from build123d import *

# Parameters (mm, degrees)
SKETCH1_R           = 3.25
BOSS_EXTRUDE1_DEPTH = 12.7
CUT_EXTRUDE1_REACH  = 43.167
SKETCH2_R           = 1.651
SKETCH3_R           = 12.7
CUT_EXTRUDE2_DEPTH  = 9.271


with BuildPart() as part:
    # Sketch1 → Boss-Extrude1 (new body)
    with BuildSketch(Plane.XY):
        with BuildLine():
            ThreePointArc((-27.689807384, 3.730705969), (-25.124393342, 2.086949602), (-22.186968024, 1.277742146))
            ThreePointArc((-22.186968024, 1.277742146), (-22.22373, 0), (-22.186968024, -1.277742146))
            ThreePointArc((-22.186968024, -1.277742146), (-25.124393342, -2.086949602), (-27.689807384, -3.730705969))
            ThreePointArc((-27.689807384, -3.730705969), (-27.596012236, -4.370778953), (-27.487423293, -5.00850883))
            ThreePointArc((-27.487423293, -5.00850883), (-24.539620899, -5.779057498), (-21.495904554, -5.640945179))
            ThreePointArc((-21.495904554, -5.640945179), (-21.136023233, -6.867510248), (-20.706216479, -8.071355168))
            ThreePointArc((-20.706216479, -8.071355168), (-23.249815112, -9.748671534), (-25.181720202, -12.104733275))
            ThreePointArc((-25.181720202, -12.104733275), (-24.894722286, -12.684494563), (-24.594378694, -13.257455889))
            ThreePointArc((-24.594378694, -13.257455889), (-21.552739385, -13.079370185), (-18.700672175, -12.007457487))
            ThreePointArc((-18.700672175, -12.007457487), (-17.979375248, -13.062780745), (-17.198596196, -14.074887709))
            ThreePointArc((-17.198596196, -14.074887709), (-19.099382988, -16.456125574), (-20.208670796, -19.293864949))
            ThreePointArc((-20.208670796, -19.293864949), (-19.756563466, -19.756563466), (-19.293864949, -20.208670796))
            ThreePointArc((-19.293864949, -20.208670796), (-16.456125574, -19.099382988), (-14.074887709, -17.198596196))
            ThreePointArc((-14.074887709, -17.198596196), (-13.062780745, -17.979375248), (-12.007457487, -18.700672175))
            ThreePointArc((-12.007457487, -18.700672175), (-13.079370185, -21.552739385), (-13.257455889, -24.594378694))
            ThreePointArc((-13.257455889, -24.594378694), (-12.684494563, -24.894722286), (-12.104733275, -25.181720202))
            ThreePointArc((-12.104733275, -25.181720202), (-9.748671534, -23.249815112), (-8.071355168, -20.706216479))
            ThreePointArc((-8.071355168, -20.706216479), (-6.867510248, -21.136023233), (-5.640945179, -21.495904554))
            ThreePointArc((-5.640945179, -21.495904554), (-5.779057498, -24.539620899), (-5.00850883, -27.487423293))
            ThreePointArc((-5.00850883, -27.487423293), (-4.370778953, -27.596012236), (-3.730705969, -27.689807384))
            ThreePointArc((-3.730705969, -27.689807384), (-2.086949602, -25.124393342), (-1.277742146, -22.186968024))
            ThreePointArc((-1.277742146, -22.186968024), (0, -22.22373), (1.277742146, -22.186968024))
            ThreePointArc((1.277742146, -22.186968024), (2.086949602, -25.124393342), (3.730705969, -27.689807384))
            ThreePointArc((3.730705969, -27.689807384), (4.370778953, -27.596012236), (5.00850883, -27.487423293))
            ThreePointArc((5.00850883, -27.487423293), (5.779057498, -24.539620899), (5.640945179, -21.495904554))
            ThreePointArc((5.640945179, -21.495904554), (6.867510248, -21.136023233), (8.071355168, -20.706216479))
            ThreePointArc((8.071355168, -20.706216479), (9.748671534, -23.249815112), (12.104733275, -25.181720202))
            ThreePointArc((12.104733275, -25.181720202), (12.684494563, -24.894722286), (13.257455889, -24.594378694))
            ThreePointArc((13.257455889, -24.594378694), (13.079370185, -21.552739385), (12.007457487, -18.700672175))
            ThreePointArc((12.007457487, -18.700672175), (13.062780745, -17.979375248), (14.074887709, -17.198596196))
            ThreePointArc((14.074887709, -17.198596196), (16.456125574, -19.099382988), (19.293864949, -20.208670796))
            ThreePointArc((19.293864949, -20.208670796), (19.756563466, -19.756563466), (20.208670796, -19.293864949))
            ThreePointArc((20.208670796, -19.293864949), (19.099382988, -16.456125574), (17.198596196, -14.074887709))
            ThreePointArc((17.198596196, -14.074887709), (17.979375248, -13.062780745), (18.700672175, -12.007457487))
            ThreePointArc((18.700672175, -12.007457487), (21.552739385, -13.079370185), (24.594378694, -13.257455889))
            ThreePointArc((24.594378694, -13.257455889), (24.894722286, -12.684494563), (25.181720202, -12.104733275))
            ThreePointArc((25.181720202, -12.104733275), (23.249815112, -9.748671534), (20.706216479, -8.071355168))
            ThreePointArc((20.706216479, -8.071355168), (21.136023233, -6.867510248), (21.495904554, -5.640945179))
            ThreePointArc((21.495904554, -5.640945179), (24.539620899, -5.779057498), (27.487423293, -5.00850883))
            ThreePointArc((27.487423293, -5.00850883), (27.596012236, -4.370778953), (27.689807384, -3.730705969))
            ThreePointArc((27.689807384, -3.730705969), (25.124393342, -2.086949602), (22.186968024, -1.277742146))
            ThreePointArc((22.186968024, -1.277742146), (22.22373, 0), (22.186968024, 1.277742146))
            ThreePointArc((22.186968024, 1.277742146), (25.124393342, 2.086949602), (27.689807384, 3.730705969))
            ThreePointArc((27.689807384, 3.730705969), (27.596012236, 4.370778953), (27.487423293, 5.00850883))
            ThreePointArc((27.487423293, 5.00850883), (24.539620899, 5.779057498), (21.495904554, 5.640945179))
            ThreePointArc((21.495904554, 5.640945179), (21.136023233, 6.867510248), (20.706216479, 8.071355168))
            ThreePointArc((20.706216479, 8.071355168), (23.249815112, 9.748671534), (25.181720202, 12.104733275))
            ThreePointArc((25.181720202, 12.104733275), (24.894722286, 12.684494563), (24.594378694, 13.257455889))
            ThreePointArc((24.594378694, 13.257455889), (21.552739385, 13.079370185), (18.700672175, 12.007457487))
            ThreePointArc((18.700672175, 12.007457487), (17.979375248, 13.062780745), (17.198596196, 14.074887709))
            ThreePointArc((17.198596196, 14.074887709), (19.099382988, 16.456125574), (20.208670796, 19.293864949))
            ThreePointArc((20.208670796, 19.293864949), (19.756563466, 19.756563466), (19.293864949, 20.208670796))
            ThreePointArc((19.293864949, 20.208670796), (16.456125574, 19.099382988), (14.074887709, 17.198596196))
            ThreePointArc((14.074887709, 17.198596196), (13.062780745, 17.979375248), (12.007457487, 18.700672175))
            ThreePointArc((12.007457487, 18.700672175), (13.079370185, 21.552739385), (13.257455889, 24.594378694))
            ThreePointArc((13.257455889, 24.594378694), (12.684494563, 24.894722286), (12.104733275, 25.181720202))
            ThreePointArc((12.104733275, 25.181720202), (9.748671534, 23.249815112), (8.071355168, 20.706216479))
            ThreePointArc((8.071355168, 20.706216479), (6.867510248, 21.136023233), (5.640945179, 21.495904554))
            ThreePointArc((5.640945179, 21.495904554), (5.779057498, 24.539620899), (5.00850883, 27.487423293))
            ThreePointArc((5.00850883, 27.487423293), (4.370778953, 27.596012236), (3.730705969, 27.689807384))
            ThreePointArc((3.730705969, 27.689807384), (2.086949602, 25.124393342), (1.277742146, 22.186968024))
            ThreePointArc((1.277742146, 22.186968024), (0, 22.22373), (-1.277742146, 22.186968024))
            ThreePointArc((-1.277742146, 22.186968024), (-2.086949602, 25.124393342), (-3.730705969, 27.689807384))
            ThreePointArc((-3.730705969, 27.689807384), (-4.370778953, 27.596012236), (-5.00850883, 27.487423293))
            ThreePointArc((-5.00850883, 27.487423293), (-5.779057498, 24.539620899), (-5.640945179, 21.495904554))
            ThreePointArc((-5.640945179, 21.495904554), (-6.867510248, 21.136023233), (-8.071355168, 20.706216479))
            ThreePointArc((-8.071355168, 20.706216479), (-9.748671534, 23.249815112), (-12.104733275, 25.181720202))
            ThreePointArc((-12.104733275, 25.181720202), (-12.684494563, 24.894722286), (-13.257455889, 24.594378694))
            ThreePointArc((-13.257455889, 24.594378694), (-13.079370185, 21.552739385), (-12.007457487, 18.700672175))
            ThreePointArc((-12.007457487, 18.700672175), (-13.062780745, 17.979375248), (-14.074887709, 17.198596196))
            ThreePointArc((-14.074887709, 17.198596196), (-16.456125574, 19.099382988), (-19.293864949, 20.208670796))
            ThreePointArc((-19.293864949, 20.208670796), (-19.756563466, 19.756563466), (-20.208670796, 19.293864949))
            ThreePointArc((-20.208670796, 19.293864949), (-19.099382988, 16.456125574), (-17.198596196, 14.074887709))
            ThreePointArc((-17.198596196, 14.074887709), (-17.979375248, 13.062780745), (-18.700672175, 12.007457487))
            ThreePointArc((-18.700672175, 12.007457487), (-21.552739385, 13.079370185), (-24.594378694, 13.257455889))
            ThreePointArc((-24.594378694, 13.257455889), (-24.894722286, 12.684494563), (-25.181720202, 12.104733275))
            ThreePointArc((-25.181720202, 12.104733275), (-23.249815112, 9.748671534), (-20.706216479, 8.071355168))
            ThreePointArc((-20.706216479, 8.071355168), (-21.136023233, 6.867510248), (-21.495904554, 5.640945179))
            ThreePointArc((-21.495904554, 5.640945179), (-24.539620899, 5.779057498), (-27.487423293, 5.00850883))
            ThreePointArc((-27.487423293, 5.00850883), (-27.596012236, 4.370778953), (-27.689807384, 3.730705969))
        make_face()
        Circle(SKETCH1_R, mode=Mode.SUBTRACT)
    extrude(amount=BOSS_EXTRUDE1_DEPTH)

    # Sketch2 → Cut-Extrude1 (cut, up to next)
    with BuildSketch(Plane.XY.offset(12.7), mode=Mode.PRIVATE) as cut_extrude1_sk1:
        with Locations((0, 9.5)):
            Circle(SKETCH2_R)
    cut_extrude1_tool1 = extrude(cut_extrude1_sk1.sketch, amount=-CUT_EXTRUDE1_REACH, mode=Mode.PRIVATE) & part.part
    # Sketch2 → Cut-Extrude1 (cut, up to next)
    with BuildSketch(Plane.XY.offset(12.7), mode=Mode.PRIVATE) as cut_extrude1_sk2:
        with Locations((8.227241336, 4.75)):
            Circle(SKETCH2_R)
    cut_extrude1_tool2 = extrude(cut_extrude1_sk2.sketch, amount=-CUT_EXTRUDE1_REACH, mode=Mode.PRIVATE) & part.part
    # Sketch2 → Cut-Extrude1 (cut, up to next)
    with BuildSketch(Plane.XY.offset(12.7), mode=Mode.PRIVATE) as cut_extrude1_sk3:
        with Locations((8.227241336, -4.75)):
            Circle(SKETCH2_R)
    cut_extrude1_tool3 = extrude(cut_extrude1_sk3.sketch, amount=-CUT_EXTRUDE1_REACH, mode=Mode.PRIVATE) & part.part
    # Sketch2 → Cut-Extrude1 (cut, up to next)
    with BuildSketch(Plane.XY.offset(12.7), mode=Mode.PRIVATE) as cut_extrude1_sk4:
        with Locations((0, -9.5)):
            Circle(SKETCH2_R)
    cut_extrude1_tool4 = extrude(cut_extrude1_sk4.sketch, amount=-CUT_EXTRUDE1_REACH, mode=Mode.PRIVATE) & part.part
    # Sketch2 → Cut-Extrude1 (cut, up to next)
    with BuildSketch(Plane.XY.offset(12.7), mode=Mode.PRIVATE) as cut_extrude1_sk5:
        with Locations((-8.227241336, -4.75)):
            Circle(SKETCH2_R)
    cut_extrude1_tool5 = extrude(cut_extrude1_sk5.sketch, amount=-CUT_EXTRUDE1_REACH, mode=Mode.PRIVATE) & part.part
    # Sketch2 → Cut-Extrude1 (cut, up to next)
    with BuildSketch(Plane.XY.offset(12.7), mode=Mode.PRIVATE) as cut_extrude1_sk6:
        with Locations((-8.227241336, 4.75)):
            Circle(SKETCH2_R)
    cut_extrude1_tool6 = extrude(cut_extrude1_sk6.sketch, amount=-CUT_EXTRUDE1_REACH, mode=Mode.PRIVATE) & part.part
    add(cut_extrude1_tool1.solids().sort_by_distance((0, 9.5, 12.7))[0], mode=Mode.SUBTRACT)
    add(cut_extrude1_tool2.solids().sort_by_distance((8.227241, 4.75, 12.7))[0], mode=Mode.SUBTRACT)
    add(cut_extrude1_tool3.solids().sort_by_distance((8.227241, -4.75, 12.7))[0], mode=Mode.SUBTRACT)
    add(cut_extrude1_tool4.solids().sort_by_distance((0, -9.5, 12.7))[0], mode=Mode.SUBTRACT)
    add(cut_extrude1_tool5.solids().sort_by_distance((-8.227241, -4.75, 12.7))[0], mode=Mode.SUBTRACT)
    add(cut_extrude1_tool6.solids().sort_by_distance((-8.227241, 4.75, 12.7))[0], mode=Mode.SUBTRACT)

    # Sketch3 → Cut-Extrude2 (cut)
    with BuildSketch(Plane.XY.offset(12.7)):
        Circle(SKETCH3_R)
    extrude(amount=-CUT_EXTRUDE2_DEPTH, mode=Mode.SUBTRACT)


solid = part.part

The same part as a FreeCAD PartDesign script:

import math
import FreeCAD as App
import Part
import Sketcher

V = App.Vector
Q = App.Units.Quantity

doc = App.newDocument("Part")
params = doc.addObject("Spreadsheet::Sheet", "Params")
for row, (alias, value) in enumerate([
    ("sketch1_radius", "0.4 in"),
    ("sketch1_radius2", "1.1 in"),
    ("sketch1_radius3", "1.1000001 in"),
    ("pad1_length", "0.5 in"),
    ("sketch2_diameter", "0.13 in"),
    ("sketch3_diameter", "0.13 in"),
    ("sketch4_diameter", "0.13 in"),
    ("sketch5_diameter", "0.13 in"),
    ("sketch6_diameter", "0.13 in"),
    ("sketch7_diameter", "0.13 in"),
    ("sketch8_diameter", "1 in"),
    ("pocket7_length", "0.365 in"),
], start=1):
    params.set(f"A{row}", alias)
    params.set(f"B{row}", "=" + value)
    params.setAlias(f"B{row}", alias)

body = doc.addObject("PartDesign::Body", "Body")

# Sketch on XY plane
sketch1 = doc.addObject("Sketcher::SketchObject", "Sketch")
body.addObject(sketch1)
sketch1.AttachmentSupport = (doc.XY_Plane, [""])
sketch1.MapMode = "FlatFace"
sketch1.addGeometry([
    Part.ArcOfCircle(Part.Circle(V(-20.987809, 11.366727, 0), V(0, 0, 1), 10.16), math.radians(-131.272842), math.radians(-96.778275)),  # 0
    Part.ArcOfCircle(Part.Circle(V(0, 0, 0), V(0, 0, 1), 22.22373), math.radians(176.70399), math.radians(183.29601)),  # 1
    Part.ArcOfCircle(Part.Circle(V(-20.987809, -11.366727, 0), V(0, 0, 1), 10.16), math.radians(96.778275), math.radians(131.272842)),  # 2
    Part.ArcOfCircle(Part.Circle(V(0, 0, 0), V(0, 0, 1), 27.94), math.radians(-172.326627), math.radians(-169.673373)),  # 3
    Part.ArcOfCircle(Part.Circle(V(-23.473104, 4.32481, 0), V(0, 0, 1), 10.16), math.radians(-113.272842), math.radians(-78.778275)),  # 4
    Part.ArcOfCircle(Part.Circle(V(0, 0, 0), V(0, 0, 1), 22.22373), math.radians(-165.29601), math.radians(-158.70399)),  # 5
    Part.ArcOfCircle(Part.Circle(V(-16.448081, -17.29599, 0), V(0, 0, 1), 10.16), math.radians(114.778275), math.radians(149.272842)),  # 6
    Part.ArcOfCircle(Part.Circle(V(-0.000001, -0.000001, 0), V(0, 0, 1), 27.939998), math.radians(-154.326627), math.radians(-151.673373)),  # 7
    Part.ArcOfCircle(Part.Circle(V(-23.660689, -3.140449, 0), V(0, 0, 1), 10.16), math.radians(-95.272842), math.radians(-60.778275)),  # 8
    Part.ArcOfCircle(Part.Circle(V(0, 0, 0), V(0, 0, 1), 22.22373), math.radians(-147.29601), math.radians(-140.703991)),  # 9
    Part.ArcOfCircle(Part.Circle(V(-10.2983, -21.5322, 0), V(0, 0, 1), 10.16), math.radians(132.778275), math.radians(167.272842)),  # 10
    Part.ArcOfCircle(Part.Circle(V(0.000002, 0.000002, 0), V(0, 0, 1), 27.940003), math.radians(-136.326627), math.radians(-133.673373)),  # 11
    Part.ArcOfCircle(Part.Circle(V(-21.5322, -10.2983, 0), V(0, 0, 1), 10.16), math.radians(-77.272842), math.radians(-42.778275)),  # 12
    Part.ArcOfCircle(Part.Circle(V(0, 0, 0), V(0, 0, 1), 22.22373), math.radians(-129.296009), math.radians(-122.70399)),  # 13
    Part.ArcOfCircle(Part.Circle(V(-3.140449, -23.660689, 0), V(0, 0, 1), 10.16), math.radians(150.778275), math.radians(185.272842)),  # 14
    Part.ArcOfCircle(Part.Circle(V(-0.000001, -0.000001, 0), V(0, 0, 1), 27.939998), math.radians(-118.326627), math.radians(-115.673373)),  # 15
    Part.ArcOfCircle(Part.Circle(V(-17.29599, -16.448081, 0), V(0, 0, 1), 10.16), math.radians(-59.272842), math.radians(-24.778275)),  # 16
    Part.ArcOfCircle(Part.Circle(V(0, 0, 0), V(0, 0, 1), 22.22373), math.radians(-111.29601), math.radians(-104.70399)),  # 17
    Part.ArcOfCircle(Part.Circle(V(4.32481, -23.473104, 0), V(0, 0, 1), 10.16), math.radians(168.778275), math.radians(203.272842)),  # 18
    Part.ArcOfCircle(Part.Circle(V(0, 0, 0), V(0, 0, 1), 27.94), math.radians(-100.326627), math.radians(-97.673373)),  # 19
    Part.ArcOfCircle(Part.Circle(V(-11.366727, -20.987809, 0), V(0, 0, 1), 10.16), math.radians(-41.272842), math.radians(-6.778275)),  # 20
    Part.ArcOfCircle(Part.Circle(V(0, 0, 0), V(0, 0, 1), 22.22373), math.radians(-93.29601), math.radians(-86.70399)),  # 21
    Part.ArcOfCircle(Part.Circle(V(11.366727, -20.987809, 0), V(0, 0, 1), 10.16), math.radians(-173.221725), math.radians(-138.727158)),  # 22
    Part.ArcOfCircle(Part.Circle(V(0, 0, 0), V(0, 0, 1), 27.94), math.radians(-82.326627), math.radians(-79.673373)),  # 23
    Part.ArcOfCircle(Part.Circle(V(-4.32481, -23.473104, 0), V(0, 0, 1), 10.16), math.radians(-23.272842), math.radians(11.221725)),  # 24
    Part.ArcOfCircle(Part.Circle(V(0, 0, 0), V(0, 0, 1), 22.22373), math.radians(-75.29601), math.radians(-68.70399)),  # 25
    Part.ArcOfCircle(Part.Circle(V(17.29599, -16.448081, 0), V(0, 0, 1), 10.16), math.radians(-155.221725), math.radians(-120.727158)),  # 26
    Part.ArcOfCircle(Part.Circle(V(0.000001, -0.000001, 0), V(0, 0, 1), 27.939998), math.radians(-64.326627), math.radians(-61.673373)),  # 27
    Part.ArcOfCircle(Part.Circle(V(3.140449, -23.660689, 0), V(0, 0, 1), 10.16), math.radians(-5.272842), math.radians(29.221725)),  # 28
    Part.ArcOfCircle(Part.Circle(V(0, 0, 0), V(0, 0, 1), 22.22373), math.radians(-57.29601), math.radians(-50.703991)),  # 29
    Part.ArcOfCircle(Part.Circle(V(21.5322, -10.2983, 0), V(0, 0, 1), 10.16), math.radians(-137.221725), math.radians(-102.727158)),  # 30
    Part.ArcOfCircle(Part.Circle(V(-0.000002, 0.000002, 0), V(0, 0, 1), 27.940003), math.radians(-46.326627), math.radians(-43.673373)),  # 31
    Part.ArcOfCircle(Part.Circle(V(10.2983, -21.5322, 0), V(0, 0, 1), 10.16), math.radians(12.727158), math.radians(47.221725)),  # 32
    Part.ArcOfCircle(Part.Circle(V(0, 0, 0), V(0, 0, 1), 22.22373), math.radians(-39.296009), math.radians(-32.70399)),  # 33
    Part.ArcOfCircle(Part.Circle(V(23.660689, -3.140449, 0), V(0, 0, 1), 10.16), math.radians(-119.221725), math.radians(-84.727158)),  # 34
    Part.ArcOfCircle(Part.Circle(V(0.000001, -0.000001, 0), V(0, 0, 1), 27.939998), math.radians(-28.326627), math.radians(-25.673373)),  # 35
    Part.ArcOfCircle(Part.Circle(V(16.448081, -17.29599, 0), V(0, 0, 1), 10.16), math.radians(30.727158), math.radians(65.221725)),  # 36
    Part.ArcOfCircle(Part.Circle(V(0, 0, 0), V(0, 0, 1), 22.22373), math.radians(-21.29601), math.radians(-14.70399)),  # 37
    Part.ArcOfCircle(Part.Circle(V(23.473104, 4.32481, 0), V(0, 0, 1), 10.16), math.radians(-101.221725), math.radians(-66.727158)),  # 38
    Part.ArcOfCircle(Part.Circle(V(0, 0, 0), V(0, 0, 1), 27.94), math.radians(-10.326627), math.radians(-7.673373)),  # 39
    Part.ArcOfCircle(Part.Circle(V(20.987809, -11.366727, 0), V(0, 0, 1), 10.16), math.radians(48.727158), math.radians(83.221725)),  # 40
    Part.ArcOfCircle(Part.Circle(V(0, 0, 0), V(0, 0, 1), 22.22373), math.radians(-3.29601), math.radians(3.29601)),  # 41
    Part.ArcOfCircle(Part.Circle(V(20.987809, 11.366727, 0), V(0, 0, 1), 10.16), math.radians(-83.221725), math.radians(-48.727158)),  # 42
    Part.ArcOfCircle(Part.Circle(V(0, 0, 0), V(0, 0, 1), 27.94), math.radians(7.673373), math.radians(10.326627)),  # 43
    Part.ArcOfCircle(Part.Circle(V(23.473104, -4.32481, 0), V(0, 0, 1), 10.16), math.radians(66.727158), math.radians(101.221725)),  # 44
    Part.ArcOfCircle(Part.Circle(V(0, 0, 0), V(0, 0, 1), 22.22373), math.radians(14.70399), math.radians(21.29601)),  # 45
    Part.ArcOfCircle(Part.Circle(V(16.448081, 17.29599, 0), V(0, 0, 1), 10.16), math.radians(-65.221725), math.radians(-30.727158)),  # 46
    Part.ArcOfCircle(Part.Circle(V(0.000001, 0.000001, 0), V(0, 0, 1), 27.939998), math.radians(25.673373), math.radians(28.326627)),  # 47
    Part.ArcOfCircle(Part.Circle(V(23.660689, 3.140449, 0), V(0, 0, 1), 10.16), math.radians(84.727158), math.radians(119.221725)),  # 48
    Part.ArcOfCircle(Part.Circle(V(0, 0, 0), V(0, 0, 1), 22.22373), math.radians(32.70399), math.radians(39.296009)),  # 49
    Part.ArcOfCircle(Part.Circle(V(10.2983, 21.5322, 0), V(0, 0, 1), 10.16), math.radians(-47.221725), math.radians(-12.727158)),  # 50
    Part.ArcOfCircle(Part.Circle(V(-0.000002, -0.000002, 0), V(0, 0, 1), 27.940003), math.radians(43.673373), math.radians(46.326627)),  # 51
    Part.ArcOfCircle(Part.Circle(V(21.5322, 10.2983, 0), V(0, 0, 1), 10.16), math.radians(102.727158), math.radians(137.221725)),  # 52
    Part.ArcOfCircle(Part.Circle(V(0, 0, 0), V(0, 0, 1), 22.22373), math.radians(50.703991), math.radians(57.29601)),  # 53
    Part.ArcOfCircle(Part.Circle(V(3.140449, 23.660689, 0), V(0, 0, 1), 10.16), math.radians(-29.221725), math.radians(5.272842)),  # 54
    Part.ArcOfCircle(Part.Circle(V(0.000001, 0.000001, 0), V(0, 0, 1), 27.939998), math.radians(61.673373), math.radians(64.326627)),  # 55
    Part.ArcOfCircle(Part.Circle(V(17.29599, 16.448081, 0), V(0, 0, 1), 10.16), math.radians(120.727158), math.radians(155.221725)),  # 56
    Part.ArcOfCircle(Part.Circle(V(0, 0, 0), V(0, 0, 1), 22.22373), math.radians(68.70399), math.radians(75.29601)),  # 57
    Part.ArcOfCircle(Part.Circle(V(-4.32481, 23.473104, 0), V(0, 0, 1), 10.16), math.radians(-11.221725), math.radians(23.272842)),  # 58
    Part.ArcOfCircle(Part.Circle(V(0, 0, 0), V(0, 0, 1), 27.94), math.radians(79.673373), math.radians(82.326627)),  # 59
    Part.ArcOfCircle(Part.Circle(V(11.366727, 20.987809, 0), V(0, 0, 1), 10.16), math.radians(138.727158), math.radians(173.221725)),  # 60
    Part.ArcOfCircle(Part.Circle(V(0, 0, 0), V(0, 0, 1), 22.22373), math.radians(86.70399), math.radians(93.29601)),  # 61
    Part.ArcOfCircle(Part.Circle(V(-11.366727, 20.987809, 0), V(0, 0, 1), 10.16), math.radians(6.778275), math.radians(41.272842)),  # 62
    Part.ArcOfCircle(Part.Circle(V(0, 0, 0), V(0, 0, 1), 27.94), math.radians(97.673373), math.radians(100.326627)),  # 63
    Part.ArcOfCircle(Part.Circle(V(4.32481, 23.473104, 0), V(0, 0, 1), 10.16), math.radians(156.727158), math.radians(191.221725)),  # 64
    Part.ArcOfCircle(Part.Circle(V(0, 0, 0), V(0, 0, 1), 22.22373), math.radians(104.70399), math.radians(111.29601)),  # 65
    Part.ArcOfCircle(Part.Circle(V(-17.29599, 16.448081, 0), V(0, 0, 1), 10.16), math.radians(24.778275), math.radians(59.272842)),  # 66
    Part.ArcOfCircle(Part.Circle(V(-0.000001, 0.000001, 0), V(0, 0, 1), 27.939998), math.radians(115.673373), math.radians(118.326627)),  # 67
    Part.ArcOfCircle(Part.Circle(V(-3.140449, 23.660689, 0), V(0, 0, 1), 10.16), math.radians(174.727158), math.radians(209.221725)),  # 68
    Part.ArcOfCircle(Part.Circle(V(0, 0, 0), V(0, 0, 1), 22.22373), math.radians(122.70399), math.radians(129.296009)),  # 69
    Part.ArcOfCircle(Part.Circle(V(-21.5322, 10.2983, 0), V(0, 0, 1), 10.16), math.radians(42.778275), math.radians(77.272842)),  # 70
    Part.ArcOfCircle(Part.Circle(V(0.000002, -0.000002, 0), V(0, 0, 1), 27.940003), math.radians(133.673373), math.radians(136.326627)),  # 71
    Part.ArcOfCircle(Part.Circle(V(-10.2983, 21.5322, 0), V(0, 0, 1), 10.16), math.radians(-167.272842), math.radians(-132.778275)),  # 72
    Part.ArcOfCircle(Part.Circle(V(0, 0, 0), V(0, 0, 1), 22.22373), math.radians(140.703991), math.radians(147.29601)),  # 73
    Part.ArcOfCircle(Part.Circle(V(-23.660689, 3.140449, 0), V(0, 0, 1), 10.16), math.radians(60.778275), math.radians(95.272842)),  # 74
    Part.ArcOfCircle(Part.Circle(V(-0.000001, 0.000001, 0), V(0, 0, 1), 27.939998), math.radians(151.673373), math.radians(154.326627)),  # 75
    Part.ArcOfCircle(Part.Circle(V(-16.448081, 17.29599, 0), V(0, 0, 1), 10.16), math.radians(-149.272842), math.radians(-114.778275)),  # 76
    Part.ArcOfCircle(Part.Circle(V(0, 0, 0), V(0, 0, 1), 22.22373), math.radians(158.70399), math.radians(165.29601)),  # 77
    Part.ArcOfCircle(Part.Circle(V(-23.473104, -4.32481, 0), V(0, 0, 1), 10.16), math.radians(78.778275), math.radians(113.272842)),  # 78
    Part.ArcOfCircle(Part.Circle(V(0, 0, 0), V(0, 0, 1), 27.94), math.radians(169.673373), math.radians(172.326627)),  # 79
    Part.Circle(V(0, 0, 0), V(0, 0, 1), 3.25),  # 80
], False)
sketch1.addConstraint([
    Sketcher.Constraint("Coincident", 0, 2, 1, 1),
    Sketcher.Constraint("Coincident", 1, 2, 2, 1),
    Sketcher.Constraint("Coincident", 2, 2, 3, 1),
    Sketcher.Constraint("Coincident", 3, 2, 4, 1),
    Sketcher.Constraint("Coincident", 4, 2, 5, 1),
    Sketcher.Constraint("Coincident", 5, 2, 6, 1),
    Sketcher.Constraint("Coincident", 6, 2, 7, 1),
    Sketcher.Constraint("Coincident", 7, 2, 8, 1),
    Sketcher.Constraint("Coincident", 8, 2, 9, 1),
    Sketcher.Constraint("Coincident", 9, 2, 10, 1),
    Sketcher.Constraint("Coincident", 10, 2, 11, 1),
    Sketcher.Constraint("Coincident", 11, 2, 12, 1),
    Sketcher.Constraint("Coincident", 12, 2, 13, 1),
    Sketcher.Constraint("Coincident", 13, 2, 14, 1),
    Sketcher.Constraint("Coincident", 14, 2, 15, 1),
    Sketcher.Constraint("Coincident", 15, 2, 16, 1),
    Sketcher.Constraint("Coincident", 16, 2, 17, 1),
    Sketcher.Constraint("Coincident", 17, 2, 18, 1),
    Sketcher.Constraint("Coincident", 18, 2, 19, 1),
    Sketcher.Constraint("Coincident", 19, 2, 20, 1),
    Sketcher.Constraint("Coincident", 20, 2, 21, 1),
    Sketcher.Constraint("Coincident", 21, 2, 22, 1),
    Sketcher.Constraint("Coincident", 22, 2, 23, 1),
    Sketcher.Constraint("Coincident", 23, 2, 24, 1),
    Sketcher.Constraint("Coincident", 24, 2, 25, 1),
    Sketcher.Constraint("Coincident", 25, 2, 26, 1),
    Sketcher.Constraint("Coincident", 26, 2, 27, 1),
    Sketcher.Constraint("Coincident", 27, 2, 28, 1),
    Sketcher.Constraint("Coincident", 28, 2, 29, 1),
    Sketcher.Constraint("Coincident", 29, 2, 30, 1),
    Sketcher.Constraint("Coincident", 30, 2, 31, 1),
    Sketcher.Constraint("Coincident", 31, 2, 32, 1),
    Sketcher.Constraint("Coincident", 32, 2, 33, 1),
    Sketcher.Constraint("Coincident", 33, 2, 34, 1),
    Sketcher.Constraint("Coincident", 34, 2, 35, 1),
    Sketcher.Constraint("Coincident", 35, 2, 36, 1),
    Sketcher.Constraint("Coincident", 36, 2, 37, 1),
    Sketcher.Constraint("Coincident", 37, 2, 38, 1),
    Sketcher.Constraint("Coincident", 38, 2, 39, 1),
    Sketcher.Constraint("Coincident", 39, 2, 40, 1),
    Sketcher.Constraint("Coincident", 40, 2, 41, 1),
    Sketcher.Constraint("Coincident", 41, 2, 42, 1),
    Sketcher.Constraint("Coincident", 42, 2, 43, 1),
    Sketcher.Constraint("Coincident", 43, 2, 44, 1),
    Sketcher.Constraint("Coincident", 44, 2, 45, 1),
    Sketcher.Constraint("Coincident", 45, 2, 46, 1),
    Sketcher.Constraint("Coincident", 46, 2, 47, 1),
    Sketcher.Constraint("Coincident", 47, 2, 48, 1),
    Sketcher.Constraint("Coincident", 48, 2, 49, 1),
    Sketcher.Constraint("Coincident", 49, 2, 50, 1),
    Sketcher.Constraint("Coincident", 50, 2, 51, 1),
    Sketcher.Constraint("Coincident", 51, 2, 52, 1),
    Sketcher.Constraint("Coincident", 52, 2, 53, 1),
    Sketcher.Constraint("Coincident", 53, 2, 54, 1),
    Sketcher.Constraint("Coincident", 54, 2, 55, 1),
    Sketcher.Constraint("Coincident", 55, 2, 56, 1),
    Sketcher.Constraint("Coincident", 56, 2, 57, 1),
    Sketcher.Constraint("Coincident", 57, 2, 58, 1),
    Sketcher.Constraint("Coincident", 58, 2, 59, 1),
    Sketcher.Constraint("Coincident", 59, 2, 60, 1),
    Sketcher.Constraint("Coincident", 60, 2, 61, 1),
    Sketcher.Constraint("Coincident", 61, 2, 62, 1),
    Sketcher.Constraint("Coincident", 62, 2, 63, 1),
    Sketcher.Constraint("Coincident", 63, 2, 64, 1),
    Sketcher.Constraint("Coincident", 64, 2, 65, 1),
    Sketcher.Constraint("Coincident", 65, 2, 66, 1),
    Sketcher.Constraint("Coincident", 66, 2, 67, 1),
    Sketcher.Constraint("Coincident", 67, 2, 68, 1),
    Sketcher.Constraint("Coincident", 68, 2, 69, 1),
    Sketcher.Constraint("Coincident", 69, 2, 70, 1),
    Sketcher.Constraint("Coincident", 70, 2, 71, 1),
    Sketcher.Constraint("Coincident", 71, 2, 72, 1),
    Sketcher.Constraint("Coincident", 72, 2, 73, 1),
    Sketcher.Constraint("Coincident", 73, 2, 74, 1),
    Sketcher.Constraint("Coincident", 74, 2, 75, 1),
    Sketcher.Constraint("Coincident", 75, 2, 76, 1),
    Sketcher.Constraint("Coincident", 76, 2, 77, 1),
    Sketcher.Constraint("Coincident", 77, 2, 78, 1),
    Sketcher.Constraint("Coincident", 78, 2, 79, 1),
    Sketcher.Constraint("Coincident", 79, 2, 0, 1),
    Sketcher.Constraint("Coincident", 1, 3, -1, 1),
    Sketcher.Constraint("Coincident", 3, 3, -1, 1),
    Sketcher.Constraint("Coincident", 5, 3, -1, 1),
    Sketcher.Constraint("Coincident", 7, 3, -1, 1),
    Sketcher.Constraint("Coincident", 9, 3, -1, 1),
    Sketcher.Constraint("Coincident", 11, 3, -1, 1),
    Sketcher.Constraint("Coincident", 13, 3, -1, 1),
    Sketcher.Constraint("Coincident", 15, 3, -1, 1),
    Sketcher.Constraint("Coincident", 17, 3, -1, 1),
    Sketcher.Constraint("Coincident", 19, 3, -1, 1),
    Sketcher.Constraint("Coincident", 21, 3, -1, 1),
    Sketcher.Constraint("Coincident", 23, 3, -1, 1),
    Sketcher.Constraint("Coincident", 25, 3, -1, 1),
    Sketcher.Constraint("Coincident", 27, 3, -1, 1),
    Sketcher.Constraint("Coincident", 29, 3, -1, 1),
    Sketcher.Constraint("Coincident", 31, 3, -1, 1),
    Sketcher.Constraint("Coincident", 33, 3, -1, 1),
    Sketcher.Constraint("Coincident", 35, 3, -1, 1),
    Sketcher.Constraint("Coincident", 37, 3, -1, 1),
    Sketcher.Constraint("Coincident", 39, 3, -1, 1),
    Sketcher.Constraint("Coincident", 41, 3, -1, 1),
    Sketcher.Constraint("Coincident", 43, 3, -1, 1),
    Sketcher.Constraint("Coincident", 45, 3, -1, 1),
    Sketcher.Constraint("Coincident", 47, 3, -1, 1),
    Sketcher.Constraint("Coincident", 49, 3, -1, 1),
    Sketcher.Constraint("Coincident", 51, 3, -1, 1),
    Sketcher.Constraint("Coincident", 53, 3, -1, 1),
    Sketcher.Constraint("Coincident", 55, 3, -1, 1),
    Sketcher.Constraint("Coincident", 57, 3, -1, 1),
    Sketcher.Constraint("Coincident", 59, 3, -1, 1),
    Sketcher.Constraint("Coincident", 61, 3, -1, 1),
    Sketcher.Constraint("Coincident", 63, 3, -1, 1),
    Sketcher.Constraint("Coincident", 65, 3, -1, 1),
    Sketcher.Constraint("Coincident", 67, 3, -1, 1),
    Sketcher.Constraint("Coincident", 69, 3, -1, 1),
    Sketcher.Constraint("Coincident", 71, 3, -1, 1),
    Sketcher.Constraint("Coincident", 73, 3, -1, 1),
    Sketcher.Constraint("Coincident", 75, 3, -1, 1),
    Sketcher.Constraint("Coincident", 77, 3, -1, 1),
    Sketcher.Constraint("Coincident", 79, 3, -1, 1),
    Sketcher.Constraint("Coincident", 80, 3, -1, 1),
    Sketcher.Constraint("Equal", 0, 2),
    Sketcher.Constraint("Equal", 2, 4),
    Sketcher.Constraint("Equal", 1, 5),
    Sketcher.Constraint("Equal", 4, 6),
    Sketcher.Constraint("Equal", 3, 7),
    Sketcher.Constraint("Equal", 6, 8),
    Sketcher.Constraint("Equal", 5, 9),
    Sketcher.Constraint("Equal", 8, 10),
    Sketcher.Constraint("Equal", 10, 12),
    Sketcher.Constraint("Equal", 9, 13),
    Sketcher.Constraint("Equal", 12, 14),
    Sketcher.Constraint("Equal", 7, 15),
    Sketcher.Constraint("Equal", 14, 16),
    Sketcher.Constraint("Equal", 13, 17),
    Sketcher.Constraint("Equal", 16, 18),
    Sketcher.Constraint("Equal", 15, 19),
    Sketcher.Constraint("Equal", 18, 20),
    Sketcher.Constraint("Equal", 17, 21),
    Sketcher.Constraint("Equal", 20, 22),
    Sketcher.Constraint("Equal", 19, 23),
    Sketcher.Constraint("Equal", 22, 24),
    Sketcher.Constraint("Equal", 21, 25),
    Sketcher.Constraint("Equal", 24, 26),
    Sketcher.Constraint("Equal", 23, 27),
    Sketcher.Constraint("Equal", 26, 28),
    Sketcher.Constraint("Equal", 25, 29),
    Sketcher.Constraint("Equal", 28, 30),
    Sketcher.Constraint("Equal", 11, 31),
    Sketcher.Constraint("Equal", 30, 32),
    Sketcher.Constraint("Equal", 29, 33),
    Sketcher.Constraint("Equal", 32, 34),
    Sketcher.Constraint("Equal", 27, 35),
    Sketcher.Constraint("Equal", 34, 36),
    Sketcher.Constraint("Equal", 33, 37),
    Sketcher.Constraint("Equal", 36, 38),
    Sketcher.Constraint("Equal", 35, 39),
    Sketcher.Constraint("Equal", 38, 40),
    Sketcher.Constraint("Equal", 37, 41),
    Sketcher.Constraint("Equal", 40, 42),
    Sketcher.Constraint("Equal", 39, 43),
    Sketcher.Constraint("Equal", 42, 44),
    Sketcher.Constraint("Equal", 41, 45),
    Sketcher.Constraint("Equal", 44, 46),
    Sketcher.Constraint("Equal", 43, 47),
    Sketcher.Constraint("Equal", 46, 48),
    Sketcher.Constraint("Equal", 45, 49),
    Sketcher.Constraint("Equal", 48, 50),
    Sketcher.Constraint("Equal", 31, 51),
    Sketcher.Constraint("Equal", 50, 52),
    Sketcher.Constraint("Equal", 49, 53),
    Sketcher.Constraint("Equal", 52, 54),
    Sketcher.Constraint("Equal", 47, 55),
    Sketcher.Constraint("Equal", 54, 56),
    Sketcher.Constraint("Equal", 53, 57),
    Sketcher.Constraint("Equal", 56, 58),
    Sketcher.Constraint("Equal", 55, 59),
    Sketcher.Constraint("Equal", 58, 60),
    Sketcher.Constraint("Equal", 57, 61),
    Sketcher.Constraint("Equal", 60, 62),
    Sketcher.Constraint("Equal", 59, 63),
    Sketcher.Constraint("Equal", 62, 64),
    Sketcher.Constraint("Equal", 61, 65),
    Sketcher.Constraint("Equal", 64, 66),
    Sketcher.Constraint("Equal", 63, 67),
    Sketcher.Constraint("Equal", 66, 68),
    Sketcher.Constraint("Equal", 65, 69),
    Sketcher.Constraint("Equal", 68, 70),
    Sketcher.Constraint("Equal", 51, 71),
    Sketcher.Constraint("Equal", 70, 72),
    Sketcher.Constraint("Equal", 69, 73),
    Sketcher.Constraint("Equal", 72, 74),
    Sketcher.Constraint("Equal", 67, 75),
    Sketcher.Constraint("Equal", 74, 76),
    Sketcher.Constraint("Equal", 73, 77),
    Sketcher.Constraint("Equal", 76, 78),
    Sketcher.Constraint("Equal", 75, 79),
    Sketcher.Constraint("Symmetric", 0, 3, 40, 3, -1, 1),
    Sketcher.Constraint("Symmetric", 2, 3, 42, 3, -1, 1),
    Sketcher.Constraint("Symmetric", 4, 3, 44, 3, -1, 1),
    Sketcher.Constraint("Symmetric", 6, 3, 46, 3, -1, 1),
    Sketcher.Constraint("Symmetric", 8, 3, 48, 3, -1, 1),
    Sketcher.Constraint("Symmetric", 10, 3, 50, 3, -1, 1),
    Sketcher.Constraint("Symmetric", 12, 3, 52, 3, -1, 1),
    Sketcher.Constraint("Symmetric", 14, 3, 54, 3, -1, 1),
    Sketcher.Constraint("Symmetric", 16, 3, 56, 3, -1, 1),
    Sketcher.Constraint("Symmetric", 18, 3, 58, 3, -1, 1),
    Sketcher.Constraint("Symmetric", 20, 3, 60, 3, -1, 1),
    Sketcher.Constraint("Symmetric", 22, 3, 62, 3, -1, 1),
    Sketcher.Constraint("Symmetric", 24, 3, 64, 3, -1, 1),
    Sketcher.Constraint("Symmetric", 26, 3, 66, 3, -1, 1),
    Sketcher.Constraint("Symmetric", 28, 3, 68, 3, -1, 1),
    Sketcher.Constraint("Symmetric", 30, 3, 70, 3, -1, 1),
    Sketcher.Constraint("Symmetric", 32, 3, 72, 3, -1, 1),
    Sketcher.Constraint("Symmetric", 34, 3, 74, 3, -1, 1),
    Sketcher.Constraint("Symmetric", 36, 3, 76, 3, -1, 1),
    Sketcher.Constraint("Symmetric", 38, 3, 78, 3, -1, 1),
    Sketcher.Constraint("Symmetric", 20, 3, 22, 3, -2),
    Sketcher.Constraint("Symmetric", 18, 3, 24, 3, -2),
    Sketcher.Constraint("Symmetric", 16, 3, 26, 3, -2),
    Sketcher.Constraint("Symmetric", 14, 3, 28, 3, -2),
    Sketcher.Constraint("Symmetric", 12, 3, 30, 3, -2),
    Sketcher.Constraint("Symmetric", 10, 3, 32, 3, -2),
    Sketcher.Constraint("Symmetric", 8, 3, 34, 3, -2),
    Sketcher.Constraint("Symmetric", 6, 3, 36, 3, -2),
    Sketcher.Constraint("Symmetric", 4, 3, 38, 3, -2),
    Sketcher.Constraint("Symmetric", 2, 3, 40, 3, -2),
    Sketcher.Constraint("Radius", 0, Q("0.4 in")),
    Sketcher.Constraint("Radius", 3, Q("1.1 in")),
    Sketcher.Constraint("Radius", 11, Q("1.1000001 in")),
    Sketcher.Constraint("Diameter", 80, 6.5),
    Sketcher.Constraint("Radius", 1, 22.22373),
    Sketcher.Constraint("DistanceX", 10, 3, -1, 1, 10.2983),
    Sketcher.Constraint("DistanceY", 10, 3, -1, 1, 21.5322),
    Sketcher.Constraint("DistanceX", 12, 3, -1, 1, 21.5322),
    Sketcher.Constraint("DistanceY", 12, 3, -1, 1, 10.2983),
    Sketcher.Constraint("DistanceX", 0, 3, -1, 1, 20.987809),
    Sketcher.Constraint("DistanceY", -1, 1, 4, 3, 4.32481),
    Sketcher.Constraint("DistanceX", 6, 3, -1, 1, 16.448081),
    Sketcher.Constraint("DistanceY", 6, 3, -1, 1, 17.29599),
    Sketcher.Constraint("DistanceX", 8, 3, -1, 1, 23.660689),
    Sketcher.Constraint("DistanceY", 8, 3, -1, 1, 3.140449),
    Sketcher.Constraint("DistanceX", 14, 3, -1, 1, 3.140449),
    Sketcher.Constraint("DistanceY", 14, 3, -1, 1, 23.660689),
    Sketcher.Constraint("DistanceX", 16, 3, -1, 1, 17.29599),
    Sketcher.Constraint("DistanceY", 16, 3, -1, 1, 16.448081),
    Sketcher.Constraint("DistanceX", -1, 1, 18, 3, 4.32481),
    Sketcher.Constraint("DistanceY", 20, 3, -1, 1, 20.987809),
    Sketcher.Constraint("DistanceX", 0, 2, -1, 1, 22.186968),
    Sketcher.Constraint("DistanceY", 3, 2, -1, 1, 5.008509),
    Sketcher.Constraint("DistanceX", 18, 2, -1, 1, 5.008509),
    Sketcher.Constraint("DistanceY", 20, 2, -1, 1, 22.186968),
])
sketch1.setExpression("Constraints[227]", "Params.sketch1_radius")
sketch1.setExpression("Constraints[228]", "Params.sketch1_radius2")
sketch1.setExpression("Constraints[229]", "Params.sketch1_radius3")
pad1 = doc.addObject("PartDesign::Pad", "Pad")
body.addObject(pad1)
pad1.Profile = sketch1
pad1.setExpression("Length", "Params.pad1_length")

# Sketch on XY plane
sketch2 = doc.addObject("Sketcher::SketchObject", "Sketch001")
body.addObject(sketch2)
sketch2.AttachmentSupport = (doc.XY_Plane, [""])
sketch2.MapMode = "FlatFace"
sketch2.AttachmentOffset = App.Placement(V(0, 0, 0.5 * 25.4), App.Rotation())
sketch2.addGeometry(Part.Circle(V(0, 9.5, 0), V(0, 0, 1), 1.651), False)
sketch2.addConstraint([
    Sketcher.Constraint("PointOnObject", 0, 3, -2),
    Sketcher.Constraint("Diameter", 0, Q("0.13 in")),
    Sketcher.Constraint("DistanceY", -1, 1, 0, 3, 9.5),
])
sketch2.setExpression("Constraints[1]", "Params.sketch2_diameter")
pocket1 = doc.addObject("PartDesign::Pocket", "Pocket")
body.addObject(pocket1)
pocket1.Profile = sketch2
pocket1.Type = "UpToFirst"

# Sketch on XY plane
sketch3 = doc.addObject("Sketcher::SketchObject", "Sketch002")
body.addObject(sketch3)
sketch3.AttachmentSupport = (doc.XY_Plane, [""])
sketch3.MapMode = "FlatFace"
sketch3.AttachmentOffset = App.Placement(V(0, 0, 0.5 * 25.4), App.Rotation())
sketch3.addGeometry(Part.Circle(V(8.227241, 4.75, 0), V(0, 0, 1), 1.651), False)
sketch3.addConstraint([
    Sketcher.Constraint("Diameter", 0, Q("0.13 in")),
    Sketcher.Constraint("DistanceY", -1, 1, 0, 3, 4.75),
    Sketcher.Constraint("DistanceX", -1, 1, 0, 3, 8.227241),
])
sketch3.setExpression("Constraints[0]", "Params.sketch3_diameter")
pocket2 = doc.addObject("PartDesign::Pocket", "Pocket001")
body.addObject(pocket2)
pocket2.Profile = sketch3
pocket2.Type = "UpToFirst"

# Sketch on XY plane
sketch4 = doc.addObject("Sketcher::SketchObject", "Sketch003")
body.addObject(sketch4)
sketch4.AttachmentSupport = (doc.XY_Plane, [""])
sketch4.MapMode = "FlatFace"
sketch4.AttachmentOffset = App.Placement(V(0, 0, 0.5 * 25.4), App.Rotation())
sketch4.addGeometry(Part.Circle(V(8.227241, -4.75, 0), V(0, 0, 1), 1.651), False)
sketch4.addConstraint([
    Sketcher.Constraint("Diameter", 0, Q("0.13 in")),
    Sketcher.Constraint("DistanceY", 0, 3, -1, 1, 4.75),
    Sketcher.Constraint("DistanceX", -1, 1, 0, 3, 8.227241),
])
sketch4.setExpression("Constraints[0]", "Params.sketch4_diameter")
pocket3 = doc.addObject("PartDesign::Pocket", "Pocket002")
body.addObject(pocket3)
pocket3.Profile = sketch4
pocket3.Type = "UpToFirst"

# Sketch on XY plane
sketch5 = doc.addObject("Sketcher::SketchObject", "Sketch004")
body.addObject(sketch5)
sketch5.AttachmentSupport = (doc.XY_Plane, [""])
sketch5.MapMode = "FlatFace"
sketch5.AttachmentOffset = App.Placement(V(0, 0, 0.5 * 25.4), App.Rotation())
sketch5.addGeometry(Part.Circle(V(0, -9.5, 0), V(0, 0, 1), 1.651), False)
sketch5.addConstraint([
    Sketcher.Constraint("PointOnObject", 0, 3, -2),
    Sketcher.Constraint("Diameter", 0, Q("0.13 in")),
    Sketcher.Constraint("DistanceY", 0, 3, -1, 1, 9.5),
])
sketch5.setExpression("Constraints[1]", "Params.sketch5_diameter")
pocket4 = doc.addObject("PartDesign::Pocket", "Pocket003")
body.addObject(pocket4)
pocket4.Profile = sketch5
pocket4.Type = "UpToFirst"

# Sketch on XY plane
sketch6 = doc.addObject("Sketcher::SketchObject", "Sketch005")
body.addObject(sketch6)
sketch6.AttachmentSupport = (doc.XY_Plane, [""])
sketch6.MapMode = "FlatFace"
sketch6.AttachmentOffset = App.Placement(V(0, 0, 0.5 * 25.4), App.Rotation())
sketch6.addGeometry(Part.Circle(V(-8.227241, -4.75, 0), V(0, 0, 1), 1.651), False)
sketch6.addConstraint([
    Sketcher.Constraint("Diameter", 0, Q("0.13 in")),
    Sketcher.Constraint("DistanceY", 0, 3, -1, 1, 4.75),
    Sketcher.Constraint("DistanceX", 0, 3, -1, 1, 8.227241),
])
sketch6.setExpression("Constraints[0]", "Params.sketch6_diameter")
pocket5 = doc.addObject("PartDesign::Pocket", "Pocket004")
body.addObject(pocket5)
pocket5.Profile = sketch6
pocket5.Type = "UpToFirst"

# Sketch on XY plane
sketch7 = doc.addObject("Sketcher::SketchObject", "Sketch006")
body.addObject(sketch7)
sketch7.AttachmentSupport = (doc.XY_Plane, [""])
sketch7.MapMode = "FlatFace"
sketch7.AttachmentOffset = App.Placement(V(0, 0, 0.5 * 25.4), App.Rotation())
sketch7.addGeometry(Part.Circle(V(-8.227241, 4.75, 0), V(0, 0, 1), 1.651), False)
sketch7.addConstraint([
    Sketcher.Constraint("Diameter", 0, Q("0.13 in")),
    Sketcher.Constraint("DistanceY", -1, 1, 0, 3, 4.75),
    Sketcher.Constraint("DistanceX", 0, 3, -1, 1, 8.227241),
])
sketch7.setExpression("Constraints[0]", "Params.sketch7_diameter")
pocket6 = doc.addObject("PartDesign::Pocket", "Pocket005")
body.addObject(pocket6)
pocket6.Profile = sketch7
pocket6.Type = "UpToFirst"

# Sketch on XY plane
sketch8 = doc.addObject("Sketcher::SketchObject", "Sketch007")
body.addObject(sketch8)
sketch8.AttachmentSupport = (doc.XY_Plane, [""])
sketch8.MapMode = "FlatFace"
sketch8.AttachmentOffset = App.Placement(V(0, 0, 0.5 * 25.4), App.Rotation())
sketch8.addGeometry(Part.Circle(V(0, 0, 0), V(0, 0, 1), 12.7), False)
sketch8.addConstraint([
    Sketcher.Constraint("Coincident", 0, 3, -1, 1),
    Sketcher.Constraint("Diameter", 0, Q("1 in")),
])
sketch8.setExpression("Constraints[1]", "Params.sketch8_diameter")
pocket7 = doc.addObject("PartDesign::Pocket", "Pocket006")
body.addObject(pocket7)
pocket7.Profile = sketch8
pocket7.setExpression("Length", "Params.pocket7_length")

doc.recompute()
